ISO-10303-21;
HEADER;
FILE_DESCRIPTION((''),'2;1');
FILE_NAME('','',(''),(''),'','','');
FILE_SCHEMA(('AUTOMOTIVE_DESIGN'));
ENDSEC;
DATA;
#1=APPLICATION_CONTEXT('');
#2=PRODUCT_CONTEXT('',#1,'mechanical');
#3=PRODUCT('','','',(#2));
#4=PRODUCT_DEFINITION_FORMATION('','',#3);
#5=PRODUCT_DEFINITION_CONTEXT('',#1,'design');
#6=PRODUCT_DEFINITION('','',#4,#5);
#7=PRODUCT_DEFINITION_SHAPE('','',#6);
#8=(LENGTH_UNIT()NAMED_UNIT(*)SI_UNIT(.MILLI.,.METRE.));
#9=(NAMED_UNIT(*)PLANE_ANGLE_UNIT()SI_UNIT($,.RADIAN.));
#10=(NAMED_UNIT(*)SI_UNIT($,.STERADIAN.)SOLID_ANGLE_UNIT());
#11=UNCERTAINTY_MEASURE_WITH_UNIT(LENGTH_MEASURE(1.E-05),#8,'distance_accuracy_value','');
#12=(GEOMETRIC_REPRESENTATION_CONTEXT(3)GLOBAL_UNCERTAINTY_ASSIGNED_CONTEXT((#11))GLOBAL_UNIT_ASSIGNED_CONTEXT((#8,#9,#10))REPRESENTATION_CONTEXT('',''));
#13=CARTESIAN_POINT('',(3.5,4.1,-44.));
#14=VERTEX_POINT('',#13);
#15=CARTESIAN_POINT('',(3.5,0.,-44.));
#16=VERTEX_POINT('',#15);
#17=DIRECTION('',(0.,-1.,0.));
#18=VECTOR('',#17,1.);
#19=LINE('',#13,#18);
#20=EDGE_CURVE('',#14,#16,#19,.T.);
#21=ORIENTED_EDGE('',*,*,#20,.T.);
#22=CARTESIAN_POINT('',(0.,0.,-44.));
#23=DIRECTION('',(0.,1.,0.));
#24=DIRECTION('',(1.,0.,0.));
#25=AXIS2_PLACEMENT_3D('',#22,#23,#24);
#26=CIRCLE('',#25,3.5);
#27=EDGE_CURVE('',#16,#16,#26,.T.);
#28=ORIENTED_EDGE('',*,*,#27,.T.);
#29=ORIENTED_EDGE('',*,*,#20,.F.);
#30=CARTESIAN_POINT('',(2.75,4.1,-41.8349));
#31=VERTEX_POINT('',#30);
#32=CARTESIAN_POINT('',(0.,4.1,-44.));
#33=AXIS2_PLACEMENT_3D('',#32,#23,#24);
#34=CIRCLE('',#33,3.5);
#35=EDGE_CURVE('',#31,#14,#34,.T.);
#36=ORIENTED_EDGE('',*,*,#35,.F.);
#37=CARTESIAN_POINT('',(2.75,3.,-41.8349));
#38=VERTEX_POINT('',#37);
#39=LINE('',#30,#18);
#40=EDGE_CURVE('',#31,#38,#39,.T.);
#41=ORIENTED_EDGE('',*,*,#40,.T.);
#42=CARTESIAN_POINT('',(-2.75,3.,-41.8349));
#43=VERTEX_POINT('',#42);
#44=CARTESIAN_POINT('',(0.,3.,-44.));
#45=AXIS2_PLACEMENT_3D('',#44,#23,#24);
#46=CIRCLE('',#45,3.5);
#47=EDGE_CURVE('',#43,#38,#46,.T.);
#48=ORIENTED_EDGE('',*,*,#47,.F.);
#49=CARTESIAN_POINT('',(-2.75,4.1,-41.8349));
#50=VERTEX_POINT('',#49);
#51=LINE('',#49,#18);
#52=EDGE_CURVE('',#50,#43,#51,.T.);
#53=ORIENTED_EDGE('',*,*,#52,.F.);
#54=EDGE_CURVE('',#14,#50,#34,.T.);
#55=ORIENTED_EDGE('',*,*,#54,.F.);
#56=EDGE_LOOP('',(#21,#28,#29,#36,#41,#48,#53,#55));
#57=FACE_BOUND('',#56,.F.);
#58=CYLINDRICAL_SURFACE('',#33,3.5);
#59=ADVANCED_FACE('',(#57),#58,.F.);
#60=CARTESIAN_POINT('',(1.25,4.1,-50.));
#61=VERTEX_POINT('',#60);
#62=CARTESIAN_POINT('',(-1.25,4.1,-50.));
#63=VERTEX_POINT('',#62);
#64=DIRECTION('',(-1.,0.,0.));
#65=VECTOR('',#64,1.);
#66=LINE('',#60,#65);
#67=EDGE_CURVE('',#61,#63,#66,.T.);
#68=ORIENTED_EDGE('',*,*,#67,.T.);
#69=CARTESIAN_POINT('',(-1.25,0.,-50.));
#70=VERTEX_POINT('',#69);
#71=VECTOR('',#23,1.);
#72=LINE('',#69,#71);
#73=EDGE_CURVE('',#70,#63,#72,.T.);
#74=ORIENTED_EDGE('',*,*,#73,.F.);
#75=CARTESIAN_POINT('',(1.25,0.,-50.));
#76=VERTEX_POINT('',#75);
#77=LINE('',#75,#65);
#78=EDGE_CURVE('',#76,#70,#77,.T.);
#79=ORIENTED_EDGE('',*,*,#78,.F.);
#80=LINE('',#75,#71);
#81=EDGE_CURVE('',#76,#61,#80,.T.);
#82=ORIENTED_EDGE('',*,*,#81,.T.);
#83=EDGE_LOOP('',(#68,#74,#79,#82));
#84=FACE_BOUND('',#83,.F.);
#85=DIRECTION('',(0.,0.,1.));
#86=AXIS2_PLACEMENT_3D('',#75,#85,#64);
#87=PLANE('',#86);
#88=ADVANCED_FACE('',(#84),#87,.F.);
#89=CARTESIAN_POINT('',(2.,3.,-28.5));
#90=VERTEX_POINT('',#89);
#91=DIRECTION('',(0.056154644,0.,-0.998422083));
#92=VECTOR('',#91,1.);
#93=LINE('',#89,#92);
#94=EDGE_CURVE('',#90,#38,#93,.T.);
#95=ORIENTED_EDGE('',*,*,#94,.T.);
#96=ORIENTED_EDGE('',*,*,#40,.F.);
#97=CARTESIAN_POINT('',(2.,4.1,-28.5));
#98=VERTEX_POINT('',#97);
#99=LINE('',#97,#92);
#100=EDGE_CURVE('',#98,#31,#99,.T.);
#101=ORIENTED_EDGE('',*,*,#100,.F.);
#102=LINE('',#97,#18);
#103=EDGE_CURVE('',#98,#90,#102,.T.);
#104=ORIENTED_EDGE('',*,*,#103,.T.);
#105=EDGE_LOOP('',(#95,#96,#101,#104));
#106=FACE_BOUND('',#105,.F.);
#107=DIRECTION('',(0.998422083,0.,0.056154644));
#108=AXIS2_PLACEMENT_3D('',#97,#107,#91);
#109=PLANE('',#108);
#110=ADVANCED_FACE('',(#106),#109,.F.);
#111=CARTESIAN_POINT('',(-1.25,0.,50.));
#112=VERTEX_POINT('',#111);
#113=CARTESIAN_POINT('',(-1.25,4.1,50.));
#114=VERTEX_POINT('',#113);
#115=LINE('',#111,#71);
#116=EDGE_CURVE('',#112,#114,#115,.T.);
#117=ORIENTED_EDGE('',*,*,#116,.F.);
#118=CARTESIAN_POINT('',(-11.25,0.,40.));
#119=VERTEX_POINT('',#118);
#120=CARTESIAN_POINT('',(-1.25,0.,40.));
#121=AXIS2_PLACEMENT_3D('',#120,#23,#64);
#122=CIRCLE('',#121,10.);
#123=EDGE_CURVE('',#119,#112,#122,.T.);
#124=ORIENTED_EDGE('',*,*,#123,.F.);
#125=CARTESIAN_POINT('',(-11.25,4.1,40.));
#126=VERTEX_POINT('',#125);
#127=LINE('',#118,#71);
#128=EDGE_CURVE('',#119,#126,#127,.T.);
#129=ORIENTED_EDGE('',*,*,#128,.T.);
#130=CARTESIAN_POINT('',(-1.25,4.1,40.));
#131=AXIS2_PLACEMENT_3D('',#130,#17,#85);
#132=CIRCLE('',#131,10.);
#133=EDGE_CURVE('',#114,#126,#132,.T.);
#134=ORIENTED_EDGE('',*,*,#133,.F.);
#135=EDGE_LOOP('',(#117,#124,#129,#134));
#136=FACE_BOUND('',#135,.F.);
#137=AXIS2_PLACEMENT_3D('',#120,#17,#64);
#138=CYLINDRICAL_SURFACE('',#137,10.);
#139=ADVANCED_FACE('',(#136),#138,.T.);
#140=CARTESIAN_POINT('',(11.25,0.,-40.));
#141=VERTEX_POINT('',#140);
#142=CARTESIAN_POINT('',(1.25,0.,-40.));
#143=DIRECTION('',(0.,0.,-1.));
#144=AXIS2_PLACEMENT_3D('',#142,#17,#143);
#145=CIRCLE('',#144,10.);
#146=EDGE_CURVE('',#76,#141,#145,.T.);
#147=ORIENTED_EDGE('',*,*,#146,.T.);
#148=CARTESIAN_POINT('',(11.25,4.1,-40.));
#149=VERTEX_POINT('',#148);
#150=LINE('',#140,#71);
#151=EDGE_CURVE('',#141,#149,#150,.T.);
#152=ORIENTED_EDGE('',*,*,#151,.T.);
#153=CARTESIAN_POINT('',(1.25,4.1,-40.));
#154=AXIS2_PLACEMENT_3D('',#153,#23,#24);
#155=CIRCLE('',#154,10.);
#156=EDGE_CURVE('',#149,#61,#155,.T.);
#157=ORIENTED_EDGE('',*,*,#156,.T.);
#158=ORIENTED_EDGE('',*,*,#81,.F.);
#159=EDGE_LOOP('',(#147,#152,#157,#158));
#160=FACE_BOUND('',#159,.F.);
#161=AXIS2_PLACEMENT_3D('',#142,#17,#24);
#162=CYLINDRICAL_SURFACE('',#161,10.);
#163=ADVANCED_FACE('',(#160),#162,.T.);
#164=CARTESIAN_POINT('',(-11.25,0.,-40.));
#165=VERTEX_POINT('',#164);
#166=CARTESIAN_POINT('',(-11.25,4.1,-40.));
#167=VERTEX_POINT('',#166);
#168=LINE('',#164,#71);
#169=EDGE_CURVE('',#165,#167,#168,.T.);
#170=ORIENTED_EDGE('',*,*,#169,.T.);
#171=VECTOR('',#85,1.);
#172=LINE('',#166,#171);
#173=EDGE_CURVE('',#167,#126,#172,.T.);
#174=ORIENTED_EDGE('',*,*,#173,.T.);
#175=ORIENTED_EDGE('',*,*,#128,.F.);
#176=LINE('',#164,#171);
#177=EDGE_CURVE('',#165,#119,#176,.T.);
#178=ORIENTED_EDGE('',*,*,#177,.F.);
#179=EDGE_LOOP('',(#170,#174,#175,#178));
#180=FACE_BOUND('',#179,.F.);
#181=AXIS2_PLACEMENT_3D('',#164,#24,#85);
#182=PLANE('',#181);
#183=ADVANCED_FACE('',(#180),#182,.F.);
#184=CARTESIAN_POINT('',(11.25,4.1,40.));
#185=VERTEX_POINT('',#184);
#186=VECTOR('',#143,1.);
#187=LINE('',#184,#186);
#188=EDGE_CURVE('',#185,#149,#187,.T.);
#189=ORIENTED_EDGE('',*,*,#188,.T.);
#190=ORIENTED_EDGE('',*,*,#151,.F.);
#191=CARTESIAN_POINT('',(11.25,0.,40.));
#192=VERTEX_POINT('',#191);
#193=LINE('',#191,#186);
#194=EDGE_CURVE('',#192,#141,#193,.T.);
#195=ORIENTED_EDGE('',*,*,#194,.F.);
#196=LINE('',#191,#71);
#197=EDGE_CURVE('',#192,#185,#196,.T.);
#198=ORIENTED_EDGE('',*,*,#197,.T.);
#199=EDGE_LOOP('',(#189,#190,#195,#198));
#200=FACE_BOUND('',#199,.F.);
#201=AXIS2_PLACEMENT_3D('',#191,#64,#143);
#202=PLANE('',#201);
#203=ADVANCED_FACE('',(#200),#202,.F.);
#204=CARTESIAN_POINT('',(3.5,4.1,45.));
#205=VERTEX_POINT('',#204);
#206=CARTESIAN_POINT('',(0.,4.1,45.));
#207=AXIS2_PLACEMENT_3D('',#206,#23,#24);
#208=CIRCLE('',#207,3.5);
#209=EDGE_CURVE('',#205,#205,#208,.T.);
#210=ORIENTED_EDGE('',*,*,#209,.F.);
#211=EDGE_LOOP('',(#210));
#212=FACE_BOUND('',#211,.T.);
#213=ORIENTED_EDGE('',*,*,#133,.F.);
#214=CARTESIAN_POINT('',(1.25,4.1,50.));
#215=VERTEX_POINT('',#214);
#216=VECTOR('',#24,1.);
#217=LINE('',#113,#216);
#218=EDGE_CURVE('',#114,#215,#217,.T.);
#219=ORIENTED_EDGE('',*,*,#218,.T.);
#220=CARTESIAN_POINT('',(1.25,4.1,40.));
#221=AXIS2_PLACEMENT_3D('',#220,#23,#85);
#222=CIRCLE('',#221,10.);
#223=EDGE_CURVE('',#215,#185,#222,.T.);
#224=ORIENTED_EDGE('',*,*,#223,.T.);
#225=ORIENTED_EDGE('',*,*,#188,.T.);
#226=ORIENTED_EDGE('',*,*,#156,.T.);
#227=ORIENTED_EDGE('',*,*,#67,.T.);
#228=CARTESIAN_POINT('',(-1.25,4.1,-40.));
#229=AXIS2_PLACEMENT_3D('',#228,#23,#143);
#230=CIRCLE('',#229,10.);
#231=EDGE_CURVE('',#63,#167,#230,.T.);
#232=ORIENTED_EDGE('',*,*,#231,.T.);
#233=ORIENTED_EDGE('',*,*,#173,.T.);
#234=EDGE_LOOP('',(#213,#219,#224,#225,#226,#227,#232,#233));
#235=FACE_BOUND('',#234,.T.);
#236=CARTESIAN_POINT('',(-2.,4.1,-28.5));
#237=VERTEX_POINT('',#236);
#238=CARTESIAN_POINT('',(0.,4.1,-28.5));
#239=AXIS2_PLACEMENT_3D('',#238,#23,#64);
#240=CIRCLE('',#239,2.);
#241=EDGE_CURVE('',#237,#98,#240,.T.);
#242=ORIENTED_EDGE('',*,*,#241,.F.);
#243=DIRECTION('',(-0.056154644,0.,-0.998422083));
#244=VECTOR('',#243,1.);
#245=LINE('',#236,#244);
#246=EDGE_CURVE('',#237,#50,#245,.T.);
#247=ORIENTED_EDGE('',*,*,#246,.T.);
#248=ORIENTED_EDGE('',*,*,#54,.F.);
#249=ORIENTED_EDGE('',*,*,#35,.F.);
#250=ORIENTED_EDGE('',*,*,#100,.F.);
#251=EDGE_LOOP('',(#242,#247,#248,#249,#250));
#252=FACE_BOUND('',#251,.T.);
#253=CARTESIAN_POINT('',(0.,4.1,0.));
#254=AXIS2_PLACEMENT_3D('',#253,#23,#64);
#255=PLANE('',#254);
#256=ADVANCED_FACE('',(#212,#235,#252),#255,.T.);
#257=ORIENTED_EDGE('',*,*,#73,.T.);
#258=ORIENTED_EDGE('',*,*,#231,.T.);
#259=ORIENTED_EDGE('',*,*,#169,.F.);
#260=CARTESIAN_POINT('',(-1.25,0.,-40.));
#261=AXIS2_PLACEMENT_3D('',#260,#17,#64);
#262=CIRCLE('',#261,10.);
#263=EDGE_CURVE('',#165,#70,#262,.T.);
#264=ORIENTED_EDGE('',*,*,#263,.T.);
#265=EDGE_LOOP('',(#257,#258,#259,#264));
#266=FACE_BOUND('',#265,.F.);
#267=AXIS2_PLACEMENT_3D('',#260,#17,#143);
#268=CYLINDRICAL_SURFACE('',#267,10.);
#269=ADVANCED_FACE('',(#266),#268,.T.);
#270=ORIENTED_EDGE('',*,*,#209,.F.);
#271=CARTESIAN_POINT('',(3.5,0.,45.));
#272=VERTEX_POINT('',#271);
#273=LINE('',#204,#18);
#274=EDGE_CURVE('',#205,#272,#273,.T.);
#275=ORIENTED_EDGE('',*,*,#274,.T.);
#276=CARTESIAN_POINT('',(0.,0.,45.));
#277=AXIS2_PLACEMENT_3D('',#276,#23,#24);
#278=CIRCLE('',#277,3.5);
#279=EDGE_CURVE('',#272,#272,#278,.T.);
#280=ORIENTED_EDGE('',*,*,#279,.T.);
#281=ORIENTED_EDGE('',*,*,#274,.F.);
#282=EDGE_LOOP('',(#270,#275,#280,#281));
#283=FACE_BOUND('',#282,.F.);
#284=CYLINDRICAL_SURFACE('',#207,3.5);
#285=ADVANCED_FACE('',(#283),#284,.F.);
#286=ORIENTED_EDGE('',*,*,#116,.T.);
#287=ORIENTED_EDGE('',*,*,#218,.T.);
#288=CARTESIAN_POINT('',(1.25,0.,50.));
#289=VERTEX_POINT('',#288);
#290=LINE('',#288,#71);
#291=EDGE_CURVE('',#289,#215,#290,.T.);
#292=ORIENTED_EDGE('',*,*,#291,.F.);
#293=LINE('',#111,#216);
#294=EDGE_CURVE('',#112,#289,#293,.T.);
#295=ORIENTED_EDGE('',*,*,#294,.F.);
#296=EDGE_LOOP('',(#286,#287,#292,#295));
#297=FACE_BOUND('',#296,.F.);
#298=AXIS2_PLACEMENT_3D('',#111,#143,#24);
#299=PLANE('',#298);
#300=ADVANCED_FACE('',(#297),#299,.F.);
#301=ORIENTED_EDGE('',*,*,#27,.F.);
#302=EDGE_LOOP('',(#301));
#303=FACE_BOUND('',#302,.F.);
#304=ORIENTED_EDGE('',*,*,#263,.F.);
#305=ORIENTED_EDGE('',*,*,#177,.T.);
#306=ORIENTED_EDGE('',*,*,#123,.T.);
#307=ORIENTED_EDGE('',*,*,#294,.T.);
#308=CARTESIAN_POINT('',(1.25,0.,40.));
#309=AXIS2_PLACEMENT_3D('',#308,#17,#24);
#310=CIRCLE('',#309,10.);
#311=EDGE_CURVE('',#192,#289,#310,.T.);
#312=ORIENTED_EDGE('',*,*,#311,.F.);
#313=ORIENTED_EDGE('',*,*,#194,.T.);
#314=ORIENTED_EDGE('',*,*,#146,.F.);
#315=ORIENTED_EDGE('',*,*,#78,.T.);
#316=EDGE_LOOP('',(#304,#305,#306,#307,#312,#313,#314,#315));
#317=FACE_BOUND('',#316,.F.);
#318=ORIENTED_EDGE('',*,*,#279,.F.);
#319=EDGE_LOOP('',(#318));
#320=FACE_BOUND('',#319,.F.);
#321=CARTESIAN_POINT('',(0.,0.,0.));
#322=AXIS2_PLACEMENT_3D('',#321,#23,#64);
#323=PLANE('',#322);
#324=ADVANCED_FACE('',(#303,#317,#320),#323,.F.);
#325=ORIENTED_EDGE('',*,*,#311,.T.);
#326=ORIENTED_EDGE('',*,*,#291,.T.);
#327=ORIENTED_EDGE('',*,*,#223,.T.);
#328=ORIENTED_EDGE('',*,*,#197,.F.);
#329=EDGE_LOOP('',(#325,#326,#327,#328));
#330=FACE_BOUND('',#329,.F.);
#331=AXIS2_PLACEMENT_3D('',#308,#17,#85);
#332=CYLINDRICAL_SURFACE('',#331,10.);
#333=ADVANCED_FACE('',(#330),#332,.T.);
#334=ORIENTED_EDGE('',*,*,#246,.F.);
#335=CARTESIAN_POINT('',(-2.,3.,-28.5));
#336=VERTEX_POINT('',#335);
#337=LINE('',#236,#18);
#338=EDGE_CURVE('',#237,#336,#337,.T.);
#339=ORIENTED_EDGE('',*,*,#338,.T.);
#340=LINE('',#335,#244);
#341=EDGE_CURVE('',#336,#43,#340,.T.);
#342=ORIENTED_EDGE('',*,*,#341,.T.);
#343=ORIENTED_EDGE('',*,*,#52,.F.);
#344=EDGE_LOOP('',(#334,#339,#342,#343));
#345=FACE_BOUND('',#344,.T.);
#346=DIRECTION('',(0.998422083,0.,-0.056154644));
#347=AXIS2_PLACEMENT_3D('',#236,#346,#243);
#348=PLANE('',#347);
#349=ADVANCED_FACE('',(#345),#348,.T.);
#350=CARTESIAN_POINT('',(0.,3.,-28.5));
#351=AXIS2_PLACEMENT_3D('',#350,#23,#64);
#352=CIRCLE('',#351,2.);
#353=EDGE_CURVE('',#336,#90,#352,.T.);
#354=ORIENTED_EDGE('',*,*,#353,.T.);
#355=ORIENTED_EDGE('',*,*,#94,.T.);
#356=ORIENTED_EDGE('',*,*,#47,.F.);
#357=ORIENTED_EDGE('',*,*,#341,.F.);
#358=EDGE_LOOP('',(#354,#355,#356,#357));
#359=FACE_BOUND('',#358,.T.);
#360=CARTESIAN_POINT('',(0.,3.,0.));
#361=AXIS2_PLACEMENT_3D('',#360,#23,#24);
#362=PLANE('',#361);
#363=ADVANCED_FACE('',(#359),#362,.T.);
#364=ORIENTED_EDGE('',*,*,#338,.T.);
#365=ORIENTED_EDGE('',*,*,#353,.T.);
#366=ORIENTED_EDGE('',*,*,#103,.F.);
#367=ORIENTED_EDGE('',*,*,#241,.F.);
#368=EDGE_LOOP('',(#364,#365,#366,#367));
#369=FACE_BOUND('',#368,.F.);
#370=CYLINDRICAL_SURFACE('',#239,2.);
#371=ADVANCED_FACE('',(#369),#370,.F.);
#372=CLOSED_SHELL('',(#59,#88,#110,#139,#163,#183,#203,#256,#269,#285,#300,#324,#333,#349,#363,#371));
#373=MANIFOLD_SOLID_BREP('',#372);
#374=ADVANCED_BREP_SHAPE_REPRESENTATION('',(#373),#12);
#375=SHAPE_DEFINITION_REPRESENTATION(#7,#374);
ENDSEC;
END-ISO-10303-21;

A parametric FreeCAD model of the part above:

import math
import FreeCAD as App
import Part
import Sketcher

V = App.Vector
Q = App.Units.Quantity

doc = App.newDocument("Part")
body = doc.addObject("PartDesign::Body", "Body")

# Sketch on XZ plane
sketch1 = body.newObject("Sketcher::SketchObject", "Sketch")
sketch1.AttachmentSupport = (doc.getObject("XZ_Plane"), [""])
sketch1.MapMode = "FlatFace"
sketch1.addGeometry([
    Part.LineSegment(V(-1.2, 50, 0), V(1.2, 50, 0)),  # 0
    Part.ArcOfCircle(Part.Circle(V(1.2, 40, 0), V(0, 0, 1), 10), math.radians(0), math.radians(90)),  # 1
    Part.LineSegment(V(11.2, 40, 0), V(11.2, -40, 0)),  # 2
    Part.ArcOfCircle(Part.Circle(V(1.2, -40, 0), V(0, 0, 1), 10), math.radians(-90), math.radians(0)),  # 3
    Part.LineSegment(V(1.2, -50, 0), V(-1.2, -50, 0)),  # 4
    Part.ArcOfCircle(Part.Circle(V(-1.2, -40, 0), V(0, 0, 1), 10), math.radians(180), math.radians(270)),  # 5
    Part.LineSegment(V(-11.2, -40, 0), V(-11.2, 40, 0)),  # 6
    Part.ArcOfCircle(Part.Circle(V(-1.2, 40, 0), V(0, 0, 1), 10), math.radians(90), math.radians(180)),  # 7
], False)
sketch1.addConstraint([
    Sketcher.Constraint("Tangent", 0, 2, 1, 2),
    Sketcher.Constraint("Tangent", 1, 1, 2, 1),
    Sketcher.Constraint("Tangent", 2, 2, 3, 2),
    Sketcher.Constraint("Tangent", 3, 1, 4, 1),
    Sketcher.Constraint("Tangent", 4, 2, 5, 2),
    Sketcher.Constraint("Tangent", 5, 1, 6, 1),
    Sketcher.Constraint("Tangent", 6, 2, 7, 2),
    Sketcher.Constraint("Tangent", 7, 1, 0, 1),
    Sketcher.Constraint("Horizontal", 0),
    Sketcher.Constraint("Vertical", 2),
    Sketcher.Constraint("Horizontal", 4),
    Sketcher.Constraint("Vertical", 6),
    Sketcher.Constraint("Equal", 1, 3),
    Sketcher.Constraint("Equal", 3, 5),
    Sketcher.Constraint("Equal", 5, 7),
    Sketcher.Constraint("Symmetric", 1, 3, 5, 3, -1, 1),
    Sketcher.Constraint("Radius", 1, Q("10 mm")),
    Sketcher.Constraint("DistanceX", 5, 1, 2, 2, Q("22.5 mm")),
    Sketcher.Constraint("DistanceY", 2, 2, 2, 1, Q("80 mm")),
])
pad1 = body.newObject("PartDesign::Pad", "Pad")
pad1.Profile = sketch1
pad1.Length = 4.1
pad1.Reversed = True

# Sketch on XZ plane
sketch2 = body.newObject("Sketcher::SketchObject", "Sketch001")
sketch2.AttachmentSupport = (doc.getObject("XZ_Plane"), [""])
sketch2.MapMode = "FlatFace"
sketch2.AttachmentOffset = App.Placement(V(0, 0, -4.1), App.Rotation())
sketch2.addGeometry(Part.Circle(V(0, -44, 0), V(0, 0, 1), 3.5), False)
sketch2.addConstraint([
    Sketcher.Constraint("PointOnObject", 0, 3, -2),
    Sketcher.Constraint("Diameter", 0, Q("7 mm")),
    Sketcher.Constraint("DistanceY", 0, 3, -1, 1, Q("44 mm")),
])
pocket1 = body.newObject("PartDesign::Pocket", "Pocket")
pocket1.Profile = sketch2
pocket1.Length = 8
pocket1.Reversed = True

# Sketch on XZ plane
sketch3 = body.newObject("Sketcher::SketchObject", "Sketch002")
sketch3.AttachmentSupport = (doc.getObject("XZ_Plane"), [""])
sketch3.MapMode = "FlatFace"
sketch3.AttachmentOffset = App.Placement(V(0, 0, -4.1), App.Rotation())
sketch3.addGeometry([
    Part.LineSegment(V(2.8, -41.8, 0), V(-2.8, -41.8, 0)),
    Part.LineSegment(V(-2.8, -41.8, 0), V(-2, -28.5, 0)),
    Part.ArcOfCircle(Part.Circle(V(0, -28.5, 0), V(0, 0, 1), 2), math.radians(0), math.radians(180)),
    Part.LineSegment(V(2, -28.5, 0), V(2.8, -41.8, 0)),
], False)
sketch3.addConstraint([
    Sketcher.Constraint("Coincident", 0, 2, 1, 1),
    Sketcher.Constraint("Coincident", 1, 2, 2, 2),
    Sketcher.Constraint("Coincident", 2, 1, 3, 1),
    Sketcher.Constraint("Coincident", 3, 2, 0, 1),
    Sketcher.Constraint("Horizontal", 0),
    Sketcher.Constraint("Symmetric", 1, 2, 2, 1, -2),
    Sketcher.Constraint("Horizontal", 2, 3, 1, 2),
    Sketcher.Constraint("Equal", 1, 3),
    Sketcher.Constraint("DistanceX", 0, 2, 0, 1, Q("5.5 mm")),
    Sketcher.Constraint("Radius", 2, Q("2 mm")),
    Sketcher.Constraint("DistanceY", 2, 3, -1, 1, Q("28.5 mm")),
    Sketcher.Constraint("Angle", 1, Q("86.781 deg")),
])
pocket2 = body.newObject("PartDesign::Pocket", "Pocket001")
pocket2.Profile = sketch3
pocket2.Length = 1.1
pocket2.Reversed = True

# Sketch on XZ plane
sketch4 = body.newObject("Sketcher::SketchObject", "Sketch003")
sketch4.AttachmentSupport = (doc.getObject("XZ_Plane"), [""])
sketch4.MapMode = "FlatFace"
sketch4.AttachmentOffset = App.Placement(V(0, 0, -4.1), App.Rotation())
sketch4.addGeometry(Part.Circle(V(0, 45, 0), V(0, 0, 1), 3.5), False)
sketch4.addConstraint([
    Sketcher.Constraint("PointOnObject", 0, 3, -2),
    Sketcher.Constraint("Diameter", 0, Q("7 mm")),
    Sketcher.Constraint("DistanceY", -1, 1, 0, 3, Q("45 mm")),
])
pocket3 = body.newObject("PartDesign::Pocket", "Pocket002")
pocket3.Profile = sketch4
pocket3.Length = 10
pocket3.Reversed = True

doc.recompute()
